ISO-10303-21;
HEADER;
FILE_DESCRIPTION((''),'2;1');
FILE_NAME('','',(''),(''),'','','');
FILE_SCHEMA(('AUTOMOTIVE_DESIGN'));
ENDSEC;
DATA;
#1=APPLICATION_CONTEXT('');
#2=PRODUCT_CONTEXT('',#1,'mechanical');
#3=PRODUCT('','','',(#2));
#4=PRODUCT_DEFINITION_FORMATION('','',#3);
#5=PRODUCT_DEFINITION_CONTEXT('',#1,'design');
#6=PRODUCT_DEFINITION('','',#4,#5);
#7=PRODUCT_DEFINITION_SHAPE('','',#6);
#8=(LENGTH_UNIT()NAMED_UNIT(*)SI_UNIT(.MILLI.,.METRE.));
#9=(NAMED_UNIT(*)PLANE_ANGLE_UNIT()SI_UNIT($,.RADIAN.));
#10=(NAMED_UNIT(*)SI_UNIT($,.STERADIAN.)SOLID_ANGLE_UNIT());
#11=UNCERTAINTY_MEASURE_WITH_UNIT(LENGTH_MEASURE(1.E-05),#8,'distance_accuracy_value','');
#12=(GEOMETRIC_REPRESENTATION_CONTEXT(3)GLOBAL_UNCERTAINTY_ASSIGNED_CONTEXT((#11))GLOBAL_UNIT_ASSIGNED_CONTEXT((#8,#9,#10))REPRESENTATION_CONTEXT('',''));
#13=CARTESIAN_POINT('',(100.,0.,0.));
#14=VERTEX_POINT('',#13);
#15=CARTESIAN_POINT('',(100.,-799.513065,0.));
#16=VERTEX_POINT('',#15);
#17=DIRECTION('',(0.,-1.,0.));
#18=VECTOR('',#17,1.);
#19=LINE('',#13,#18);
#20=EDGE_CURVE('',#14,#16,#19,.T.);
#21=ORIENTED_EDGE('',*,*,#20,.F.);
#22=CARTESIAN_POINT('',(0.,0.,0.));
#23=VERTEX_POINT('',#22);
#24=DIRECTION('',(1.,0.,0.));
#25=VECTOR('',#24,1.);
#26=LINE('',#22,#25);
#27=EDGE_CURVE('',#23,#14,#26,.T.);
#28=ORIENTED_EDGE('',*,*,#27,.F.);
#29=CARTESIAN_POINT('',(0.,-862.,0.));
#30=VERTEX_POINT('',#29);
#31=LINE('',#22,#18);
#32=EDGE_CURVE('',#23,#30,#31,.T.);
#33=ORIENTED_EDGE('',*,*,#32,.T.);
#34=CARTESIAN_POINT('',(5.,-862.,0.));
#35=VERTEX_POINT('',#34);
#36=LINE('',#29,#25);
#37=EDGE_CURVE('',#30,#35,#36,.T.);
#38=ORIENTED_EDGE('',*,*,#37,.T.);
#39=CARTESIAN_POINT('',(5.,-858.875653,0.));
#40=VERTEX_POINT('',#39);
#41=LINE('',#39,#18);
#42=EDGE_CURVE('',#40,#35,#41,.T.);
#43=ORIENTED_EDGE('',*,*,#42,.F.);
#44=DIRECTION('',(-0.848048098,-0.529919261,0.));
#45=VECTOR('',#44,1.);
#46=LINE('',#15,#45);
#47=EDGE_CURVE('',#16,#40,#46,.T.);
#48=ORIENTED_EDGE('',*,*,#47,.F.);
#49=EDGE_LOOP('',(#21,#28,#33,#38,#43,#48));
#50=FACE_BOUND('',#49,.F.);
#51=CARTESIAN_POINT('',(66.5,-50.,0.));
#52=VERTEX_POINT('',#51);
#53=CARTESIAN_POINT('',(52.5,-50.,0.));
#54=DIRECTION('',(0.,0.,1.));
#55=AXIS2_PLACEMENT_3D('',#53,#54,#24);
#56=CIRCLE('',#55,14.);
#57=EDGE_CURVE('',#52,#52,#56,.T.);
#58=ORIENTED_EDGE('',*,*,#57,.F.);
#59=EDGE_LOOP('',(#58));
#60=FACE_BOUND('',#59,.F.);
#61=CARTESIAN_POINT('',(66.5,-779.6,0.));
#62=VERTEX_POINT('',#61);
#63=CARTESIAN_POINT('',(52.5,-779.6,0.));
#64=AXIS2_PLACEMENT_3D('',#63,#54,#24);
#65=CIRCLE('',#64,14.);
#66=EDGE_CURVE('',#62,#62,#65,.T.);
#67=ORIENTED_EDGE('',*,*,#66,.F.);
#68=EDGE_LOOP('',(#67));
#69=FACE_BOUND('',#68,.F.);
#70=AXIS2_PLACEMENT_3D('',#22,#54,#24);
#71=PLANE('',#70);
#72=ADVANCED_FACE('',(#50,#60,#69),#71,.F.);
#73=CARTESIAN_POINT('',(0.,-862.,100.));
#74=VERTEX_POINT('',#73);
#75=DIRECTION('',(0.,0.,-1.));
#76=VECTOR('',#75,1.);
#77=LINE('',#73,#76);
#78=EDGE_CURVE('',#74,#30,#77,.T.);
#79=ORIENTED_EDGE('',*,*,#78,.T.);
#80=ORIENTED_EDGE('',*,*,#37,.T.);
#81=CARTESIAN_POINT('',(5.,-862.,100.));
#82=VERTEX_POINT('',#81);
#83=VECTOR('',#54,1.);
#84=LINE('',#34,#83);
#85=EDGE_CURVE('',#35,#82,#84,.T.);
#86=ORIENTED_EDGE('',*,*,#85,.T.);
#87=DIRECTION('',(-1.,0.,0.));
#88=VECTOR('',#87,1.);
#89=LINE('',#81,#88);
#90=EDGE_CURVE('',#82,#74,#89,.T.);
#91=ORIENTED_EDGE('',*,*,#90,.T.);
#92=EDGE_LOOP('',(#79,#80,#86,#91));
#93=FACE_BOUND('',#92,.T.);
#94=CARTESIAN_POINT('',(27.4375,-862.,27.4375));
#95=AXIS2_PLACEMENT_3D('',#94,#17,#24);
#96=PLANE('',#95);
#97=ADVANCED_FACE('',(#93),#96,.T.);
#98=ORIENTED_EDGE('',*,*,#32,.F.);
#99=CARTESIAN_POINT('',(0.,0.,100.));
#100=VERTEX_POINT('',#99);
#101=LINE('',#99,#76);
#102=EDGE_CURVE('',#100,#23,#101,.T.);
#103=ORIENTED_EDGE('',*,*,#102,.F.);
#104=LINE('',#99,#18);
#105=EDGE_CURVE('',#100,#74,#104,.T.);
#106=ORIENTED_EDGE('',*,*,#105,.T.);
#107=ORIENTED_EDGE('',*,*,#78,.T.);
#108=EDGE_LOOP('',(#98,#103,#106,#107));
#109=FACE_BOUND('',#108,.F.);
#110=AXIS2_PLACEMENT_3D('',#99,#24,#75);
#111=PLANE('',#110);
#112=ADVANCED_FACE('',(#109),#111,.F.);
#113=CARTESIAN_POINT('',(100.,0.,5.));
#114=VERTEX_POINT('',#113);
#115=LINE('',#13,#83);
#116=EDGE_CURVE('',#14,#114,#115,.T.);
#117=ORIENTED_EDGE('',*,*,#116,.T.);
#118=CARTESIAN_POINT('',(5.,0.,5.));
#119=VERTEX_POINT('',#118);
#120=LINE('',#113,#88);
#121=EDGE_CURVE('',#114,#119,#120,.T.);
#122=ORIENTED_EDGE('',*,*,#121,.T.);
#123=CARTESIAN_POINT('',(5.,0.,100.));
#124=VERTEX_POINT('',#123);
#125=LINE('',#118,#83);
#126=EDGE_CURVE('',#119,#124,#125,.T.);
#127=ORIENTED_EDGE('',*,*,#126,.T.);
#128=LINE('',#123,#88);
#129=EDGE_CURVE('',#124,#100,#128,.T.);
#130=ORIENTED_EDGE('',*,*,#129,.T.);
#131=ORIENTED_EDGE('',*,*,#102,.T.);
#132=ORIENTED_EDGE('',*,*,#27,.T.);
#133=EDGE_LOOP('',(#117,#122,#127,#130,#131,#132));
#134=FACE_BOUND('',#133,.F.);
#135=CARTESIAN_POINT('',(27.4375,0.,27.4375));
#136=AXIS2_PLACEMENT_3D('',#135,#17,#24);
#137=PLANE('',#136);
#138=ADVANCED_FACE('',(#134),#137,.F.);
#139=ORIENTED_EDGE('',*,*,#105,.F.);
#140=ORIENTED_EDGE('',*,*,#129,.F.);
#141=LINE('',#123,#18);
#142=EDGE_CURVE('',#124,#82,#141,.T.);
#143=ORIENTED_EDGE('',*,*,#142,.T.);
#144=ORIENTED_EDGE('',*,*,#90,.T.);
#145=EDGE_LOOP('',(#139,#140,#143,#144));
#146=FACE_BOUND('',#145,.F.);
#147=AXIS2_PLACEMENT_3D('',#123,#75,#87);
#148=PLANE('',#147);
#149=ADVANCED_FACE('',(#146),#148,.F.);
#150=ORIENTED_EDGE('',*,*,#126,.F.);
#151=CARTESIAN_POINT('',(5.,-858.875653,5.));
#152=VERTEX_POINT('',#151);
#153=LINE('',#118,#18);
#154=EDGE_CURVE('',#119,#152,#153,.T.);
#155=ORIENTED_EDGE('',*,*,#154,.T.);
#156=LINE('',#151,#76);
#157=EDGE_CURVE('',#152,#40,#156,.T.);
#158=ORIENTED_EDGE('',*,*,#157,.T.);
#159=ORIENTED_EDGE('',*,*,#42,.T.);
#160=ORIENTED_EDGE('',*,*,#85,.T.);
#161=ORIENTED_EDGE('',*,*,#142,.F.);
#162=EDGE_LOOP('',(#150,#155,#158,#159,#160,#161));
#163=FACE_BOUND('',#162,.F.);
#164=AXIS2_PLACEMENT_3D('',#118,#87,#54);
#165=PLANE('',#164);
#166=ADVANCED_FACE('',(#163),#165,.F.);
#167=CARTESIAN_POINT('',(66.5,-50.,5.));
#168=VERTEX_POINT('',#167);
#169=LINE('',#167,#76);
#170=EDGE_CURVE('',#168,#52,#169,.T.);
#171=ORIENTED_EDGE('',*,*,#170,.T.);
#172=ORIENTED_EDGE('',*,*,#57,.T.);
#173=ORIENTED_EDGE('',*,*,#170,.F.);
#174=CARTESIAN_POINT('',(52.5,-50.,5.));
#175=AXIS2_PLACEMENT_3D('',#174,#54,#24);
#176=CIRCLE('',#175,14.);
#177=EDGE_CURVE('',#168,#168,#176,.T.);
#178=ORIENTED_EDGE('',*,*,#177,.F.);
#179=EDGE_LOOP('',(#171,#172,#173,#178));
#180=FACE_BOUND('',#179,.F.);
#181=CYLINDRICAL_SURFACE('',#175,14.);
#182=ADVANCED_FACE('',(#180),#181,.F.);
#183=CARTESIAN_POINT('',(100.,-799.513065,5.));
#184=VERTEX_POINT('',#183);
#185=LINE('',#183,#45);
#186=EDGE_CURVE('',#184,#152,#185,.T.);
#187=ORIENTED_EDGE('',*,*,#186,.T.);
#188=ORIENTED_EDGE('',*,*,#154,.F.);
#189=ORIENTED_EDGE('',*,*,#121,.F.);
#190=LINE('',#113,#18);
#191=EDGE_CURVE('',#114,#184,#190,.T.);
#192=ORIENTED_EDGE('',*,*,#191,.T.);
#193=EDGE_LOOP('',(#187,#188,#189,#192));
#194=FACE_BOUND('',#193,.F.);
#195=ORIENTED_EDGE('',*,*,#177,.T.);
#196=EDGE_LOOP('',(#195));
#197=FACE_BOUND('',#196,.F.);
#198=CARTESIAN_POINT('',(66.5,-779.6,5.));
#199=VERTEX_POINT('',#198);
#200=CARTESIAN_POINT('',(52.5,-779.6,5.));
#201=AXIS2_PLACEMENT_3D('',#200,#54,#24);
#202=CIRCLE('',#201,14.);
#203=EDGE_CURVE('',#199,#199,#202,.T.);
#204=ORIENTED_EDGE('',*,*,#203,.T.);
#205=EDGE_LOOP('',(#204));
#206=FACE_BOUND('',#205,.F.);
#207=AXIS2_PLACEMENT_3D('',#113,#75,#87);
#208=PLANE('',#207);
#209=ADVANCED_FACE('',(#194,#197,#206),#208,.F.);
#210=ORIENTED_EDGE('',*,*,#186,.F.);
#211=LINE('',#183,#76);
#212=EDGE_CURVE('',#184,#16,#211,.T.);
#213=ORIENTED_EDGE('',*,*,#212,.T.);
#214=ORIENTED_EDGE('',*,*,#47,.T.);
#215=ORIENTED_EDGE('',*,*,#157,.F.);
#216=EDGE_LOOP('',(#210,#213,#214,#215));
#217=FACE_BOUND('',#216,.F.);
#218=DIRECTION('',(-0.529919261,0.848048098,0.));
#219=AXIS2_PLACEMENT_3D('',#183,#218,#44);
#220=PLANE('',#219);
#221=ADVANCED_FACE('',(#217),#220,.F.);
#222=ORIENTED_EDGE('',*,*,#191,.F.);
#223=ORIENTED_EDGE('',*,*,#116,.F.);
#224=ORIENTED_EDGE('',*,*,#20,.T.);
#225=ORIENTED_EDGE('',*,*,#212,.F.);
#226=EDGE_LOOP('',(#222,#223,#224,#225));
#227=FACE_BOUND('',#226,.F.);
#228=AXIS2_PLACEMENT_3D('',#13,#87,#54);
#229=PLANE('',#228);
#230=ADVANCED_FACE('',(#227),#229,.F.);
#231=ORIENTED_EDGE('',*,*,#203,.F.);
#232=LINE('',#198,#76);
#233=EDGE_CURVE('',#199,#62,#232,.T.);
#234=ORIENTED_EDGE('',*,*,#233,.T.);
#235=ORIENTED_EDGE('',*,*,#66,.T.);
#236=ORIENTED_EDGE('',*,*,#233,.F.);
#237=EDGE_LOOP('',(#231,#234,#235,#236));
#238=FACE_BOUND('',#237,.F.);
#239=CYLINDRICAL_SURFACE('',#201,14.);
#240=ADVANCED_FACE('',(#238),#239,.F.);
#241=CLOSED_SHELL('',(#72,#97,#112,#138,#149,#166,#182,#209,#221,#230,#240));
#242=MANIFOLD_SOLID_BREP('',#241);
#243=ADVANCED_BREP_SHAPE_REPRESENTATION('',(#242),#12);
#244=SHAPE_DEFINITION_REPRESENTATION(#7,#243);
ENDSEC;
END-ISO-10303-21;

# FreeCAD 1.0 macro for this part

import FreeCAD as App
import Part
import Sketcher
from FreeCAD import Vector
Q = App.Units.Quantity

doc = App.newDocument("Part")
body = doc.addObject("PartDesign::Body", "Body")

# Sketch on XZ plane
sketch1 = doc.addObject("Sketcher::SketchObject", "Sketch")
body.addObject(sketch1)
sketch1.AttachmentSupport = (doc.XZ_Plane, [""])
sketch1.MapMode = "FlatFace"
sketch1.addGeometry([
    Part.LineSegment(Vector(0, 100, 0), Vector(0, 0, 0)),  # 0
    Part.LineSegment(Vector(0, 0, 0), Vector(100, 0, 0)),  # 1
    Part.LineSegment(Vector(100, 0, 0), Vector(100, 5, 0)),  # 2
    Part.LineSegment(Vector(100, 5, 0), Vector(5, 5, 0)),  # 3
    Part.LineSegment(Vector(5, 5, 0), Vector(5, 100, 0)),  # 4
    Part.LineSegment(Vector(5, 100, 0), Vector(0, 100, 0)),  # 5
], False)
sketch1.addConstraint([
    Sketcher.Constraint("Coincident", 0, 2, 1, 1),
    Sketcher.Constraint("Coincident", 1, 2, 2, 1),
    Sketcher.Constraint("Coincident", 2, 2, 3, 1),
    Sketcher.Constraint("Coincident", 3, 2, 4, 1),
    Sketcher.Constraint("Coincident", 4, 2, 5, 1),
    Sketcher.Constraint("Coincident", 5, 2, 0, 1),
    Sketcher.Constraint("Vertical", 0),
    Sketcher.Constraint("Horizontal", 1),
    Sketcher.Constraint("Vertical", 2),
    Sketcher.Constraint("Horizontal", 3),
    Sketcher.Constraint("Vertical", 4),
    Sketcher.Constraint("Horizontal", 5),
    Sketcher.Constraint("Coincident", 0, 2, -1, 1),
    Sketcher.Constraint("Equal", 1, 0),
    Sketcher.Constraint("Equal", 5, 2),
    Sketcher.Constraint("DistanceX", 1, 1, 1, 2, Q("100 mm")),
    Sketcher.Constraint("DistanceX", 3, 2, 3, 1, Q("95 mm")),
])
pad1 = doc.addObject("PartDesign::Pad", "Pad")
body.addObject(pad1)
pad1.Profile = sketch1
pad1.Length = 862

# Sketch on XY plane
sketch2 = doc.addObject("Sketcher::SketchObject", "Sketch001")
body.addObject(sketch2)
sketch2.AttachmentSupport = (doc.XY_Plane, [""])
sketch2.MapMode = "FlatFace"
sketch2.AttachmentOffset = App.Placement(Vector(0, 0, 5), App.Rotation())
sketch2.addGeometry([
    Part.Circle(Vector(52.5, -50, 0), Vector(0, 0, 1), 14),
    Part.Circle(Vector(52.5, -779.6, 0), Vector(0, 0, 1), 14),
], False)
sketch2.addConstraint([
    Sketcher.Constraint("Equal", 0, 1),
    Sketcher.Constraint("Vertical", 0, 3, 1, 3),
    Sketcher.Constraint("Diameter", 0, Q("28 mm")),
    Sketcher.Constraint("DistanceY", 0, 3, -1, 1, Q("50 mm")),
    Sketcher.Constraint("DistanceX", -1, 1, 0, 3, Q("52.5 mm")),
    Sketcher.Constraint("DistanceY", 1, 3, -1, 1, Q("779.6 mm")),
])
pocket1 = doc.addObject("PartDesign::Pocket", "Pocket")
body.addObject(pocket1)
pocket1.Profile = sketch2
pocket1.Type = "ThroughAll"

# Sketch on XY plane
sketch3 = doc.addObject("Sketcher::SketchObject", "Sketch002")
body.addObject(sketch3)
sketch3.AttachmentSupport = (doc.XY_Plane, [""])
sketch3.MapMode = "FlatFace"
sketch3.AttachmentOffset = App.Placement(Vector(0, 0, 5), App.Rotation())
sketch3.addGeometry([
    Part.LineSegment(Vector(100, -799.513065, 0), Vector(5, -858.875653, 0)),
    Part.LineSegment(Vector(5, -858.875653, 0), Vector(5, -862, 0)),
    Part.LineSegment(Vector(5, -862, 0), Vector(100, -862, 0)),
    Part.LineSegment(Vector(100, -862, 0), Vector(100, -799.513065, 0)),
], False)
sketch3.addConstraint([
    Sketcher.Constraint("Coincident", 0, 2, 1, 1),
    Sketcher.Constraint("Coincident", 1, 2, 2, 1),
    Sketcher.Constraint("Coincident", 2, 2, 3, 1),
    Sketcher.Constraint("Coincident", 3, 2, 0, 1),
    Sketcher.Constraint("Vertical", 1),
    Sketcher.Constraint("Horizontal", 2),
    Sketcher.Constraint("Vertical", 3),
    Sketcher.Constraint("DistanceX", 2, 1, 2, 2, Q("95 mm")),
    Sketcher.Constraint("Angle", 0, Q("-148 deg")),
    Sketcher.Constraint("DistanceX", -1, 1, 0, 2, Q("5 mm")),
    Sketcher.Constraint("DistanceY", 1, 2, -1, 1, Q("862 mm")),
    Sketcher.Constraint("DistanceY", 1, 2, 1, 1, Q("3.124347 mm")),
])
pocket2 = doc.addObject("PartDesign::Pocket", "Pocket001")
body.addObject(pocket2)
pocket2.Profile = sketch3
pocket2.Length = 5

doc.recompute()
